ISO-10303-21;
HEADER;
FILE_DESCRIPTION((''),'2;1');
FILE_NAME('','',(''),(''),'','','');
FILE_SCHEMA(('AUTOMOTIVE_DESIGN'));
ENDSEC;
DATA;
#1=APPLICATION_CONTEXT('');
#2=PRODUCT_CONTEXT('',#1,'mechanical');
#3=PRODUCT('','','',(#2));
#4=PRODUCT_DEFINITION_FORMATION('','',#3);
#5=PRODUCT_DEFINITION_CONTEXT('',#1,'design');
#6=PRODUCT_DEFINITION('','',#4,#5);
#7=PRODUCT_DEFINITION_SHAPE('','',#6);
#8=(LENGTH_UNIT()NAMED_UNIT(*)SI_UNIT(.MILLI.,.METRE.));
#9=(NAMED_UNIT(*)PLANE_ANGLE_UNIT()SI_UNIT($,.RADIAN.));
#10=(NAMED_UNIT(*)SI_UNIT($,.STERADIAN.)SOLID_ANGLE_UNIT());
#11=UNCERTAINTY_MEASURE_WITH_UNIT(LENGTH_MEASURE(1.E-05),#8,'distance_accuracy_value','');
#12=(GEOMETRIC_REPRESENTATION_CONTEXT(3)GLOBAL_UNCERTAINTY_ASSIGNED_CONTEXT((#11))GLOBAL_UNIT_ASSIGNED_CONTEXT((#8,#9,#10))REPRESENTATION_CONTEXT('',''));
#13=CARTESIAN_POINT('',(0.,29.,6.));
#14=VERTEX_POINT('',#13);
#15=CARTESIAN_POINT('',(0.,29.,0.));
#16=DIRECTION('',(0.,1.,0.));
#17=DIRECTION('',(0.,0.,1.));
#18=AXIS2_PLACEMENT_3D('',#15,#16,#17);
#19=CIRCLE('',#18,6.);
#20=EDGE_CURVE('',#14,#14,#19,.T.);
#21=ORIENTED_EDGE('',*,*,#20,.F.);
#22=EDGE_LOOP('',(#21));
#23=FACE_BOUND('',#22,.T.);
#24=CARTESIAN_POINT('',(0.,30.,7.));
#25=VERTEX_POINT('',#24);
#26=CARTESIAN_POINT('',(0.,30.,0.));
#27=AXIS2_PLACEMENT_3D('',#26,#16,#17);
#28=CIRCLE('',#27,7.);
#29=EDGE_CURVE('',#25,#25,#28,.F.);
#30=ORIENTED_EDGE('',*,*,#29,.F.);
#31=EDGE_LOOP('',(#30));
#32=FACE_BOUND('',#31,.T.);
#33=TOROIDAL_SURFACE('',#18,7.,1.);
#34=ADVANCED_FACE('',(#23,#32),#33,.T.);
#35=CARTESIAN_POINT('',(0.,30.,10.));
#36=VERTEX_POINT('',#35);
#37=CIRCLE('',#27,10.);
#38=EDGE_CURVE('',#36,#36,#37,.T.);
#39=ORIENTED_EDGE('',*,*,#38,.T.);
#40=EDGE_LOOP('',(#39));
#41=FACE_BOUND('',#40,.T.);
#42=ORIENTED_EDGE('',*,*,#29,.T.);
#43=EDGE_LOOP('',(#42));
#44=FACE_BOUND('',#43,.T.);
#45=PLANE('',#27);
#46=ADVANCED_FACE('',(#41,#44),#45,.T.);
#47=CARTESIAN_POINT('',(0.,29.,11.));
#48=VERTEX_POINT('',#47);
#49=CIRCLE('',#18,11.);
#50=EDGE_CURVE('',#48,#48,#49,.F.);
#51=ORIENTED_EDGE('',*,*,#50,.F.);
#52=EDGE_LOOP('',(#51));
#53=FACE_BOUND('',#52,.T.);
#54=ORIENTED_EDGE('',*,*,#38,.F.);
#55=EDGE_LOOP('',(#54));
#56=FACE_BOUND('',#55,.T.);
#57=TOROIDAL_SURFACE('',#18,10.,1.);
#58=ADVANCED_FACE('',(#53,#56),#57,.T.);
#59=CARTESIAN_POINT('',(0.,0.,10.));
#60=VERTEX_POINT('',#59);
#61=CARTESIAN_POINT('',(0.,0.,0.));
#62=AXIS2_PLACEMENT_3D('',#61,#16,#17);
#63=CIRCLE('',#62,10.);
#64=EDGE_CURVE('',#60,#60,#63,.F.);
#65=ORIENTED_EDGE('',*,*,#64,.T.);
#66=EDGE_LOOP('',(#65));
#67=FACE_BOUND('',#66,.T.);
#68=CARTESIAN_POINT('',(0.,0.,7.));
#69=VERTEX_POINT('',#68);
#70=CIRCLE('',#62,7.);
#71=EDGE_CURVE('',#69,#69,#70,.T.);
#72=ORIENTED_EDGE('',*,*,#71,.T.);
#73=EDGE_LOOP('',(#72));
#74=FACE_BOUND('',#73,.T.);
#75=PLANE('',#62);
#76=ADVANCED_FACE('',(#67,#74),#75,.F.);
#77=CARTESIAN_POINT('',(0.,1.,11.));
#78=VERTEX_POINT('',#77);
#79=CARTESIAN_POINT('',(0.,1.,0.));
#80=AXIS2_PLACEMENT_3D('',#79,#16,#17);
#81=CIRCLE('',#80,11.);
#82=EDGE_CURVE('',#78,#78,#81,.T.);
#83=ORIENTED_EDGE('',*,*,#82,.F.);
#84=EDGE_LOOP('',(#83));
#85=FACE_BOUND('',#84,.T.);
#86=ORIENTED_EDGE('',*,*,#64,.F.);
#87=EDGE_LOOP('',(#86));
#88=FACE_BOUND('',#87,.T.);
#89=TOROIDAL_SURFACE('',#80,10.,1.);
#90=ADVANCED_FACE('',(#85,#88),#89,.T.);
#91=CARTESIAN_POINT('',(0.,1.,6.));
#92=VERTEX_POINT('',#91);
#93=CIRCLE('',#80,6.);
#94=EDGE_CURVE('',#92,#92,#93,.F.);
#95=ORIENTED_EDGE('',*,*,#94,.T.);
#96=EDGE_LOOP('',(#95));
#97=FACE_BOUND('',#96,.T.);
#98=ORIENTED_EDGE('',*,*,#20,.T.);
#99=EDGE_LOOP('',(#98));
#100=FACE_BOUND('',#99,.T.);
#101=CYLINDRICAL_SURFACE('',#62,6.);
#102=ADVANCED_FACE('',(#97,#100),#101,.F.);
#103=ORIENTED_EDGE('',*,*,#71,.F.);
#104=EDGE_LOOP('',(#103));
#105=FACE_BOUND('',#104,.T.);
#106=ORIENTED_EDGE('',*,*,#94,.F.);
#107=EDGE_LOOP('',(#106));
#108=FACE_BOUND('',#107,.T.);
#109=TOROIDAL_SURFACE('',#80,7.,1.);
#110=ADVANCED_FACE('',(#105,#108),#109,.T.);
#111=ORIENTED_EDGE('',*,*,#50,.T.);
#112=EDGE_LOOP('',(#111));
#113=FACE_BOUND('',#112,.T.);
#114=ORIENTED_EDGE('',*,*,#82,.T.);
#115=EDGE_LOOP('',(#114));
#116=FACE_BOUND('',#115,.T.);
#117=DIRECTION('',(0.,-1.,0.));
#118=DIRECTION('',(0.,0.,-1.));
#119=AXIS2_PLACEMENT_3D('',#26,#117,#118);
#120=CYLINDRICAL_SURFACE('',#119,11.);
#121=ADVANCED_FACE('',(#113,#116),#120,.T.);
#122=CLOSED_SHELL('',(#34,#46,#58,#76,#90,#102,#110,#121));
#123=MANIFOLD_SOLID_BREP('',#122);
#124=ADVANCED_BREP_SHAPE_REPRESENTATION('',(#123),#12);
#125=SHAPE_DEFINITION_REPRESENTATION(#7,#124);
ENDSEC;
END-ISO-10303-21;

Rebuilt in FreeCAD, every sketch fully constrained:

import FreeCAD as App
import Part
import Sketcher
from FreeCAD import Vector


def edges_at(feature, points):
    """Names of the edges that pass closest to the given points."""
    edges = feature.Shape.Edges
    near = lambda p: min(range(len(edges)), key=lambda i: edges[i].distToShape(Part.Vertex(*p))[0])
    return sorted({f"Edge{near(p) + 1}" for p in points})

doc = App.newDocument("Part")
body = doc.addObject("PartDesign::Body", "Body")

sketch1 = body.newObject("Sketcher::SketchObject", "Sketch")
sketch1.AttachmentSupport = (doc.getObject("XZ_Plane"), [""])
sketch1.MapMode = "FlatFace"
sketch1.addGeometry(Part.Circle(Vector(0, 0, 0), Vector(0, 0, 1), 11), False)
sketch1.addConstraint([
    Sketcher.Constraint("Coincident", 0, 3, -1, 1),
    Sketcher.Constraint("Diameter", 0, 22.0),
])
pad1 = body.newObject("PartDesign::Pad", "Pad")
pad1.Profile = sketch1
pad1.Length = 30
pad1.Reversed = True

sketch2 = body.newObject("Sketcher::SketchObject", "Sketch001")
sketch2.AttachmentSupport = (doc.getObject("XZ_Plane"), [""])
sketch2.MapMode = "FlatFace"
sketch2.AttachmentOffset = App.Placement(Vector(0, 0, -30), App.Rotation())
sketch2.addGeometry(Part.Circle(Vector(0, 0, 0), Vector(0, 0, 1), 6), False)
sketch2.addConstraint([
    Sketcher.Constraint("Coincident", 0, 3, -1, 1),
    Sketcher.Constraint("Diameter", 0, 12.0),
])
pocket1 = body.newObject("PartDesign::Pocket", "Pocket")
pocket1.Profile = sketch2
pocket1.Type = "ThroughAll"
pocket1.Reversed = True
doc.recompute()

fillet = body.newObject("PartDesign::Fillet", "Fillet")
fillet.Base = (pocket1, edges_at(pocket1, [
    (0, 0, -11),
    (0, 30, -11),
    (0, 0, -6),
    (0, 30, -6),
]))
fillet.Radius = 1

doc.recompute()
